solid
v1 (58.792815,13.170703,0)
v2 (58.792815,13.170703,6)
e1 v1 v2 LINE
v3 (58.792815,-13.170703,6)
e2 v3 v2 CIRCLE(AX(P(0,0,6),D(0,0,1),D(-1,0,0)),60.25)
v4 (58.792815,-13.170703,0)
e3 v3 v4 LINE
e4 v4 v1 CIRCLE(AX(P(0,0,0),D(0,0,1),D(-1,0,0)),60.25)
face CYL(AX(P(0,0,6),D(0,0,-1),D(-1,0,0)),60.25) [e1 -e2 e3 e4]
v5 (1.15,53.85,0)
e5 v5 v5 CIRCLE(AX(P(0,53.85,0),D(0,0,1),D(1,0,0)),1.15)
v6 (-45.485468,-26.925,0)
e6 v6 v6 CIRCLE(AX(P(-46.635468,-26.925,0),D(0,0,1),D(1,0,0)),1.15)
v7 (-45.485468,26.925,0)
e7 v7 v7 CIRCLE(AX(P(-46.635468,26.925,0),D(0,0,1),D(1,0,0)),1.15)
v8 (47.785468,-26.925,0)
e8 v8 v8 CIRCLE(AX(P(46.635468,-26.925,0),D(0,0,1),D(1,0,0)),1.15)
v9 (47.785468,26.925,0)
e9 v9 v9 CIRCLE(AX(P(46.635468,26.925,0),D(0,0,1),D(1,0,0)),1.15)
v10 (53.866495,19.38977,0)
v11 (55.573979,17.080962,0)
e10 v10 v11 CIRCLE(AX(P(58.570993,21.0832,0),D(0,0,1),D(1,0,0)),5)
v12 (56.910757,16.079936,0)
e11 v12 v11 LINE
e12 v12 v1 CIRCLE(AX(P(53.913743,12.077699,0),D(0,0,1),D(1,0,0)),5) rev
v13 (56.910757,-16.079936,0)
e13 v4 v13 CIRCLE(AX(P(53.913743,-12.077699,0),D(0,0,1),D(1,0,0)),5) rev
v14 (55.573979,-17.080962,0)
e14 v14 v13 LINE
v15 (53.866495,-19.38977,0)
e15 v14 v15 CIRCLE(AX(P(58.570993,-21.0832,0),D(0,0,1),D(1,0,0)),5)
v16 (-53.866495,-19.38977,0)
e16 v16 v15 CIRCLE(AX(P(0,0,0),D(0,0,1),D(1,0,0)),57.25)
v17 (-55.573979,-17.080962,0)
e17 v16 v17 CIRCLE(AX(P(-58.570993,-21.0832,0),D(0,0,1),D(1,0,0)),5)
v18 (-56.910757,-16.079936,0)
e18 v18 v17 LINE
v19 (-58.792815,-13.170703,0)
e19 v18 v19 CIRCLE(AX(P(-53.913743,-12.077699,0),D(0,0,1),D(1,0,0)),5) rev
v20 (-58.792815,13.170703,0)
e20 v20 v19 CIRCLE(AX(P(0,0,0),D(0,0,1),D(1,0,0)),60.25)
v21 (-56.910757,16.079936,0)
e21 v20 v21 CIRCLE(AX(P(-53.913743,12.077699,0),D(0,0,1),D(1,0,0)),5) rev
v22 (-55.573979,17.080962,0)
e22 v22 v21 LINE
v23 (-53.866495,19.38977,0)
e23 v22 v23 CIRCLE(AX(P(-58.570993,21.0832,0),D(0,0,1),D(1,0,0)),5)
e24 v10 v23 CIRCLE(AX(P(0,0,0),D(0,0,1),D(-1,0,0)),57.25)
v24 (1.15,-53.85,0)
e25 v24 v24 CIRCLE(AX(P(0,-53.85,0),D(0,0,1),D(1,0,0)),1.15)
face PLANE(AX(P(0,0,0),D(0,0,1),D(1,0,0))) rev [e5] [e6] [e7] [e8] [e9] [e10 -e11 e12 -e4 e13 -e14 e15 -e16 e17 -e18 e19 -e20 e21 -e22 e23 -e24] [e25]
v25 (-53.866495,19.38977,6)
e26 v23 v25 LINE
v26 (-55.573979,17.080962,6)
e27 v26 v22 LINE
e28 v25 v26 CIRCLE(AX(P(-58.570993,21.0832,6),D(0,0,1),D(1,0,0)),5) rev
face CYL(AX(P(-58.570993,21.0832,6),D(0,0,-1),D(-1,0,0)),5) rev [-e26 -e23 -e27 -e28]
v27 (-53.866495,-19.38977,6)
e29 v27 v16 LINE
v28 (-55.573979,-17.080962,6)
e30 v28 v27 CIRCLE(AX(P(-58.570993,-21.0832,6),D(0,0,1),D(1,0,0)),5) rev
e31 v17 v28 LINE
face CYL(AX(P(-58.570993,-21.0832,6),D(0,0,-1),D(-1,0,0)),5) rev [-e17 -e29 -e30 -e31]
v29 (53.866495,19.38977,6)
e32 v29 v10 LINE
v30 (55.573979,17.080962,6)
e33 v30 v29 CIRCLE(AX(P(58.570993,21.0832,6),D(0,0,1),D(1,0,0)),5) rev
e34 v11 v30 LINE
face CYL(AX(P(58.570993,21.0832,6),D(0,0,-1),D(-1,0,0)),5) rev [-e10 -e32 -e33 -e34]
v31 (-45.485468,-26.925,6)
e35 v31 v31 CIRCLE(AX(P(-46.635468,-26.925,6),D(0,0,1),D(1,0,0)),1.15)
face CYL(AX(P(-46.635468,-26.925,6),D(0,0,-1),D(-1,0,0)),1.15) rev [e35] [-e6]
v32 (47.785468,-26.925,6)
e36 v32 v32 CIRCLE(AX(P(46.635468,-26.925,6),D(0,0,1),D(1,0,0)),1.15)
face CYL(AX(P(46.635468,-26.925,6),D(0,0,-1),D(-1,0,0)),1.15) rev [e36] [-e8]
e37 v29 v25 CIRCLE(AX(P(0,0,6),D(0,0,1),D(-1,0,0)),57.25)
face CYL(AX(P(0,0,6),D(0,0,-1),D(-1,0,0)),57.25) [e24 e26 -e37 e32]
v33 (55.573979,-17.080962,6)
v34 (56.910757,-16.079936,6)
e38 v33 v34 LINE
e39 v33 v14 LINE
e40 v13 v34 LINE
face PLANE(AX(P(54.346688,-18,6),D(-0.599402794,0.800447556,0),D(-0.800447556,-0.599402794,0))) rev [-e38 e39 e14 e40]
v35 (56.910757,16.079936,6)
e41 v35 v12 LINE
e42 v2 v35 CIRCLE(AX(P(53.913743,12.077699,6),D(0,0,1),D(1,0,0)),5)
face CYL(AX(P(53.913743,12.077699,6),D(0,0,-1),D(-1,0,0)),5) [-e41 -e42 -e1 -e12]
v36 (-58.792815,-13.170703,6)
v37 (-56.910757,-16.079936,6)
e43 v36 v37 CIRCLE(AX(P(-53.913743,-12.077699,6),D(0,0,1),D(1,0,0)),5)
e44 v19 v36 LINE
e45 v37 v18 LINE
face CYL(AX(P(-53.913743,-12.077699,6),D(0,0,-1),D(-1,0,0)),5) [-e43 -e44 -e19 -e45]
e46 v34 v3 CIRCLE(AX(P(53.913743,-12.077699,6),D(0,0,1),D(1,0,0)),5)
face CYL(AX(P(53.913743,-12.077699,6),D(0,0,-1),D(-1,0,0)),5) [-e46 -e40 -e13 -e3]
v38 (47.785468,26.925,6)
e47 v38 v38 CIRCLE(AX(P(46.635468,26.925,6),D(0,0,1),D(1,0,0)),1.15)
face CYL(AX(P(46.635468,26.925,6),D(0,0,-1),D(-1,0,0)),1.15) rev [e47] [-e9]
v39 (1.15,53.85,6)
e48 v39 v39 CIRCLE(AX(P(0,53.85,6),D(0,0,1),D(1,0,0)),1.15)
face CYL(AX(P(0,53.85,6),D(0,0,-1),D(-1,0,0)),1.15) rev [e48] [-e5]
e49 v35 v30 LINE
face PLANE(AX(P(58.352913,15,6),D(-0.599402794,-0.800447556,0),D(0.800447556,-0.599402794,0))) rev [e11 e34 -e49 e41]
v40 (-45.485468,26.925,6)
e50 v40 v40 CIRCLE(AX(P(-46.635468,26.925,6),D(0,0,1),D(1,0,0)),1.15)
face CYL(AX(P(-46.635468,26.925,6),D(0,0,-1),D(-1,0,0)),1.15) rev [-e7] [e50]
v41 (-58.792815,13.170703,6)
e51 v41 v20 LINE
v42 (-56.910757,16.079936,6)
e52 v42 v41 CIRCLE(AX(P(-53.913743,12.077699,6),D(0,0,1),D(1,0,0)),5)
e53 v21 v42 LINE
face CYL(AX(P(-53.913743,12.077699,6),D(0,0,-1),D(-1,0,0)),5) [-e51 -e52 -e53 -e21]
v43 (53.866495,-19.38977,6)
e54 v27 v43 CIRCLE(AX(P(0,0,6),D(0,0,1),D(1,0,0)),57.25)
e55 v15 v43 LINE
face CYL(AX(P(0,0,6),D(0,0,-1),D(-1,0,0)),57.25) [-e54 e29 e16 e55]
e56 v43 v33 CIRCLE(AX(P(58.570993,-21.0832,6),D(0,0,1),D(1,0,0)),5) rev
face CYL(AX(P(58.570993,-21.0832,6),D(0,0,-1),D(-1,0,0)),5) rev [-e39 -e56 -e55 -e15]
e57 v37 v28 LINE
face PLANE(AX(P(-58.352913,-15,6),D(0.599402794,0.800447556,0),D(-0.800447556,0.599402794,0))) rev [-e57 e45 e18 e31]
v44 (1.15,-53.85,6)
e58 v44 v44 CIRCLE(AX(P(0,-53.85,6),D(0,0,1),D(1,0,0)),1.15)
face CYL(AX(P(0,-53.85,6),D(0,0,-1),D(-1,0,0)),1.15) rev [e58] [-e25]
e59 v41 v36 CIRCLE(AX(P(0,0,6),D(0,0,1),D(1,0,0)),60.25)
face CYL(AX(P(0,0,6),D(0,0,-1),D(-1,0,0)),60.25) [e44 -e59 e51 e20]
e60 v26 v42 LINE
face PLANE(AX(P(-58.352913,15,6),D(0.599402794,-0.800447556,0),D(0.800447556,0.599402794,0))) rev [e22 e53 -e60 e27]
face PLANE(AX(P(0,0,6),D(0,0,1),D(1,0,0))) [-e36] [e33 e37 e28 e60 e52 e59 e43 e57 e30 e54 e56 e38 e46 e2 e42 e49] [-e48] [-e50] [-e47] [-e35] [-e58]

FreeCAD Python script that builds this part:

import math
import FreeCAD as App
import Part
import Sketcher
from FreeCAD import Vector


def edges_at(feature, points):
    """Names of the edges that pass closest to the given points."""
    edges = feature.Shape.Edges
    near = lambda p: min(range(len(edges)), key=lambda i: edges[i].distToShape(Part.Vertex(*p))[0])
    return sorted({f"Edge{near(p) + 1}" for p in points})

doc = App.newDocument("Part")
body = doc.addObject("PartDesign::Body", "Body")

# Sketch on XY plane
sketch1 = body.newObject("Sketcher::SketchObject", "Sketch")
sketch1.AttachmentSupport = (doc.getObject("XY_Plane"), [""])
sketch1.MapMode = "FlatFace"
sketch1.addGeometry([
    Part.LineSegment(Vector(-54.3, 18, 0), Vector(-58.4, 15, 0)),  # 0
    Part.ArcOfCircle(Part.Circle(Vector(0, 0, 0), Vector(0, 0, 1), 60.3), math.radians(166), math.radians(194)),  # 1
    Part.LineSegment(Vector(-58.4, -15, 0), Vector(-54.3, -18, 0)),  # 2
    Part.ArcOfCircle(Part.Circle(Vector(0, 0, 0), Vector(0, 0, 1), 57.3), math.radians(-162), math.radians(-18)),  # 3
    Part.LineSegment(Vector(54.3, -18, 0), Vector(58.4, -15, 0)),  # 4
    Part.ArcOfCircle(Part.Circle(Vector(0, 0, 0), Vector(0, 0, 1), 60.3), math.radians(-14), math.radians(14)),  # 5
    Part.LineSegment(Vector(58.4, 15, 0), Vector(54.3, 18, 0)),  # 6
    Part.ArcOfCircle(Part.Circle(Vector(0, 0, 0), Vector(0, 0, 1), 57.3), math.radians(18), math.radians(162)),  # 7
    Part.Circle(Vector(46.6, -26.9, 0), Vector(0, 0, 1), 1.1),  # 8
    Part.Circle(Vector(0, -53.9, 0), Vector(0, 0, 1), 1.1),  # 9
    Part.Circle(Vector(-46.6, -26.9, 0), Vector(0, 0, 1), 1.1),  # 10
    Part.Circle(Vector(46.6, 26.9, 0), Vector(0, 0, 1), 1.1),  # 11
    Part.Circle(Vector(-46.6, 26.9, 0), Vector(0, 0, 1), 1.1),  # 12
    Part.Circle(Vector(0, 53.9, 0), Vector(0, 0, 1), 1.1),  # 13
], False)
sketch1.addConstraint([
    Sketcher.Constraint("Coincident", 0, 2, 1, 1),
    Sketcher.Constraint("Coincident", 1, 2, 2, 1),
    Sketcher.Constraint("Coincident", 2, 2, 3, 1),
    Sketcher.Constraint("Coincident", 3, 2, 4, 1),
    Sketcher.Constraint("Coincident", 4, 2, 5, 1),
    Sketcher.Constraint("Coincident", 5, 2, 6, 1),
    Sketcher.Constraint("Coincident", 6, 2, 7, 1),
    Sketcher.Constraint("Coincident", 7, 2, 0, 1),
    Sketcher.Constraint("Coincident", 1, 3, -1, 1),
    Sketcher.Constraint("Coincident", 3, 3, -1, 1),
    Sketcher.Constraint("Coincident", 5, 3, -1, 1),
    Sketcher.Constraint("Coincident", 7, 3, -1, 1),
    Sketcher.Constraint("Equal", 1, 5),
    Sketcher.Constraint("Equal", 3, 7),
    Sketcher.Constraint("Equal", 8, 9),
    Sketcher.Constraint("Equal", 9, 10),
    Sketcher.Constraint("Equal", 10, 11),
    Sketcher.Constraint("Equal", 11, 12),
    Sketcher.Constraint("Equal", 12, 13),
    Sketcher.Constraint("Symmetric", 10, 3, 11, 3, -1, 1),
    Sketcher.Constraint("Symmetric", 8, 3, 12, 3, -1, 1),
    Sketcher.Constraint("Symmetric", 9, 3, 13, 3, -1, 1),
    Sketcher.Constraint("Symmetric", 8, 3, 10, 3, -2),
    Sketcher.Constraint("PointOnObject", 9, 3, -2),
    Sketcher.Constraint("Parallel", 0, 4),
    Sketcher.Constraint("Parallel", 2, 6),
    Sketcher.Constraint("Horizontal", 2, 2, 3, 2),
    Sketcher.Constraint("Horizontal", 1, 2, 4, 2),
    Sketcher.Constraint("Horizontal", 0, 2, 5, 2),
    Sketcher.Constraint("Vertical", 0, 2, 1, 2),
    Sketcher.Constraint("Diameter", 8, 2.3),
    Sketcher.Constraint("Radius", 1, 60.25),
    Sketcher.Constraint("Radius", 3, 57.25),
    Sketcher.Constraint("DistanceY", -1, 1, 0, 2, 15.0),
    Sketcher.Constraint("DistanceY", 2, 2, -1, 1, 18.0),
    Sketcher.Constraint("DistanceY", 9, 3, -1, 1, 53.85),
    Sketcher.Constraint("DistanceY", 8, 3, 11, 3, 53.85),
    Sketcher.Constraint("DistanceX", 5, 3, 8, 3, 46.635468),
])
pad1 = body.newObject("PartDesign::Pad", "Pad")
pad1.Profile = sketch1
pad1.Length = 6
doc.recompute()

fillet = body.newObject("PartDesign::Fillet", "Fillet")
fillet.Base = (pad1, edges_at(pad1, [
    (-54.347, -18, 3),
    (-58.353, -15, 3),
    (-58.353, 15, 3),
    (-54.347, 18, 3),
    (54.347, 18, 3),
    (58.353, 15, 3),
    (58.353, -15, 3),
    (54.347, -18, 3),
]))
fillet.Radius = 5

doc.recompute()
